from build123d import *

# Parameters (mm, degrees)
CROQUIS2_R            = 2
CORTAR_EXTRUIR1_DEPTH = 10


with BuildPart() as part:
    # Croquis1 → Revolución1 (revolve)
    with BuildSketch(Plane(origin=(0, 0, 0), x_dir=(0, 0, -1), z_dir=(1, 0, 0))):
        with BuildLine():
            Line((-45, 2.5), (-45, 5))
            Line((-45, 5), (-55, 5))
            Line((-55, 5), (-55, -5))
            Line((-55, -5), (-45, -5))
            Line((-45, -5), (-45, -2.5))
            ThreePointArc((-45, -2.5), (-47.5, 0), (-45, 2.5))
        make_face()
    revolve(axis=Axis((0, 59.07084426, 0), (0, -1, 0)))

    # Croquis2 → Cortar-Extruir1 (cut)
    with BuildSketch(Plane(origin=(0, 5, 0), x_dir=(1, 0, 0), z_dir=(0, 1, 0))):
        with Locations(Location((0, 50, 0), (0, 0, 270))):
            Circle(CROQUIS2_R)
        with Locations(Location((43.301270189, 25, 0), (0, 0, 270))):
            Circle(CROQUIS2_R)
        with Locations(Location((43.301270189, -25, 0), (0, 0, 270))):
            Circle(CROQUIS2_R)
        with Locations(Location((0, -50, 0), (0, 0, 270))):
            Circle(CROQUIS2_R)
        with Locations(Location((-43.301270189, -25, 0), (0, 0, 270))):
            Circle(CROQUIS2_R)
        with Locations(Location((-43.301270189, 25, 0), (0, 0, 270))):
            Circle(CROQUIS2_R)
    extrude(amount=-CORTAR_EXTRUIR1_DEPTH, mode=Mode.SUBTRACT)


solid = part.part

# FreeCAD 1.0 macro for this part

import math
import FreeCAD as App
import Part
import Sketcher
Q = App.Units.Quantity

doc = App.newDocument("Part")
body = doc.addObject("PartDesign::Body", "Body")

# Sketch on YZ plane
sketch1 = body.newObject("Sketcher::SketchObject", "Sketch")
sketch1.AttachmentSupport = (doc.getObject("YZ_Plane"), [""])
sketch1.MapMode = "FlatFace"
sketch1.addGeometry([
    Part.LineSegment(App.Vector(2.5, 45, 0), App.Vector(5, 45, 0)),  # 0
    Part.LineSegment(App.Vector(5, 45, 0), App.Vector(5, 55, 0)),  # 1
    Part.LineSegment(App.Vector(5, 55, 0), App.Vector(-5, 55, 0)),  # 2
    Part.LineSegment(App.Vector(-5, 55, 0), App.Vector(-5, 45, 0)),  # 3
    Part.LineSegment(App.Vector(-5, 45, 0), App.Vector(-2.5, 45, 0)),  # 4
    Part.ArcOfCircle(Part.Circle(App.Vector(0, 45, 0), App.Vector(0, 0, 1), 2.5), math.radians(0), math.radians(180)),  # 5
], False)
sketch1.addConstraint([
    Sketcher.Constraint("Coincident", 0, 2, 1, 1),
    Sketcher.Constraint("Coincident", 1, 2, 2, 1),
    Sketcher.Constraint("Coincident", 2, 2, 3, 1),
    Sketcher.Constraint("Coincident", 3, 2, 4, 1),
    Sketcher.Constraint("Coincident", 4, 2, 5, 2),
    Sketcher.Constraint("Coincident", 5, 1, 0, 1),
    Sketcher.Constraint("Horizontal", 0),
    Sketcher.Constraint("Vertical", 1),
    Sketcher.Constraint("Horizontal", 2),
    Sketcher.Constraint("Vertical", 3),
    Sketcher.Constraint("Horizontal", 4),
    Sketcher.Constraint("Symmetric", 0, 2, 3, 2, -2),
    Sketcher.Constraint("PointOnObject", 5, 3, -2),
    Sketcher.Constraint("Horizontal", 5, 3, 0, 2),
    Sketcher.Constraint("Equal", 2, 1),
    Sketcher.Constraint("Radius", 5, Q("2.5 mm")),
    Sketcher.Constraint("DistanceX", 2, 2, 2, 1, Q("10 mm")),
    Sketcher.Constraint("DistanceY", -1, 1, 5, 3, Q("45 mm")),
])
revolution = body.newObject("PartDesign::Revolution", "Revolution")
revolution.Profile = sketch1
revolution.ReferenceAxis = (sketch1, ["H_Axis"])
revolution.Angle = 360

# Sketch on XZ plane
sketch2 = body.newObject("Sketcher::SketchObject", "Sketch001")
sketch2.AttachmentSupport = (doc.getObject("XZ_Plane"), [""])
sketch2.MapMode = "FlatFace"
sketch2.AttachmentOffset = App.Placement(App.Vector(0, 0, -5), App.Rotation())
sketch2.addGeometry([
    Part.Circle(App.Vector(0, -50, 0), App.Vector(0, 0, 1), 2),  # 0
    Part.Circle(App.Vector(43.30127, -25, 0), App.Vector(0, 0, 1), 2),  # 1
    Part.Circle(App.Vector(43.30127, 25, 0), App.Vector(0, 0, 1), 2),  # 2
    Part.Circle(App.Vector(0, 50, 0), App.Vector(0, 0, 1), 2),  # 3
    Part.Circle(App.Vector(-43.30127, 25, 0), App.Vector(0, 0, 1), 2),  # 4
    Part.Circle(App.Vector(-43.30127, -25, 0), App.Vector(0, 0, 1), 2),  # 5
], False)
sketch2.addConstraint([
    Sketcher.Constraint("Equal", 0, 1),
    Sketcher.Constraint("Equal", 1, 2),
    Sketcher.Constraint("Equal", 2, 3),
    Sketcher.Constraint("Equal", 3, 4),
    Sketcher.Constraint("Equal", 4, 5),
    Sketcher.Constraint("Symmetric", 0, 3, 3, 3, -1, 1),
    Sketcher.Constraint("Symmetric", 1, 3, 4, 3, -1, 1),
    Sketcher.Constraint("Symmetric", 2, 3, 5, 3, -1, 1),
    Sketcher.Constraint("Symmetric", 2, 3, 4, 3, -2),
    Sketcher.Constraint("PointOnObject", 0, 3, -2),
    Sketcher.Constraint("Diameter", 0, Q("4 mm")),
    Sketcher.Constraint("DistanceY", 0, 3, -1, 1, Q("50 mm")),
    Sketcher.Constraint("DistanceY", 1, 3, -1, 1, Q("25 mm")),
    Sketcher.Constraint("DistanceX", -1, 1, 1, 3, Q("43.30127 mm")),
])
pocket1 = body.newObject("PartDesign::Pocket", "Pocket")
pocket1.Profile = sketch2
pocket1.Length = 10
pocket1.Reversed = True

doc.recompute()
